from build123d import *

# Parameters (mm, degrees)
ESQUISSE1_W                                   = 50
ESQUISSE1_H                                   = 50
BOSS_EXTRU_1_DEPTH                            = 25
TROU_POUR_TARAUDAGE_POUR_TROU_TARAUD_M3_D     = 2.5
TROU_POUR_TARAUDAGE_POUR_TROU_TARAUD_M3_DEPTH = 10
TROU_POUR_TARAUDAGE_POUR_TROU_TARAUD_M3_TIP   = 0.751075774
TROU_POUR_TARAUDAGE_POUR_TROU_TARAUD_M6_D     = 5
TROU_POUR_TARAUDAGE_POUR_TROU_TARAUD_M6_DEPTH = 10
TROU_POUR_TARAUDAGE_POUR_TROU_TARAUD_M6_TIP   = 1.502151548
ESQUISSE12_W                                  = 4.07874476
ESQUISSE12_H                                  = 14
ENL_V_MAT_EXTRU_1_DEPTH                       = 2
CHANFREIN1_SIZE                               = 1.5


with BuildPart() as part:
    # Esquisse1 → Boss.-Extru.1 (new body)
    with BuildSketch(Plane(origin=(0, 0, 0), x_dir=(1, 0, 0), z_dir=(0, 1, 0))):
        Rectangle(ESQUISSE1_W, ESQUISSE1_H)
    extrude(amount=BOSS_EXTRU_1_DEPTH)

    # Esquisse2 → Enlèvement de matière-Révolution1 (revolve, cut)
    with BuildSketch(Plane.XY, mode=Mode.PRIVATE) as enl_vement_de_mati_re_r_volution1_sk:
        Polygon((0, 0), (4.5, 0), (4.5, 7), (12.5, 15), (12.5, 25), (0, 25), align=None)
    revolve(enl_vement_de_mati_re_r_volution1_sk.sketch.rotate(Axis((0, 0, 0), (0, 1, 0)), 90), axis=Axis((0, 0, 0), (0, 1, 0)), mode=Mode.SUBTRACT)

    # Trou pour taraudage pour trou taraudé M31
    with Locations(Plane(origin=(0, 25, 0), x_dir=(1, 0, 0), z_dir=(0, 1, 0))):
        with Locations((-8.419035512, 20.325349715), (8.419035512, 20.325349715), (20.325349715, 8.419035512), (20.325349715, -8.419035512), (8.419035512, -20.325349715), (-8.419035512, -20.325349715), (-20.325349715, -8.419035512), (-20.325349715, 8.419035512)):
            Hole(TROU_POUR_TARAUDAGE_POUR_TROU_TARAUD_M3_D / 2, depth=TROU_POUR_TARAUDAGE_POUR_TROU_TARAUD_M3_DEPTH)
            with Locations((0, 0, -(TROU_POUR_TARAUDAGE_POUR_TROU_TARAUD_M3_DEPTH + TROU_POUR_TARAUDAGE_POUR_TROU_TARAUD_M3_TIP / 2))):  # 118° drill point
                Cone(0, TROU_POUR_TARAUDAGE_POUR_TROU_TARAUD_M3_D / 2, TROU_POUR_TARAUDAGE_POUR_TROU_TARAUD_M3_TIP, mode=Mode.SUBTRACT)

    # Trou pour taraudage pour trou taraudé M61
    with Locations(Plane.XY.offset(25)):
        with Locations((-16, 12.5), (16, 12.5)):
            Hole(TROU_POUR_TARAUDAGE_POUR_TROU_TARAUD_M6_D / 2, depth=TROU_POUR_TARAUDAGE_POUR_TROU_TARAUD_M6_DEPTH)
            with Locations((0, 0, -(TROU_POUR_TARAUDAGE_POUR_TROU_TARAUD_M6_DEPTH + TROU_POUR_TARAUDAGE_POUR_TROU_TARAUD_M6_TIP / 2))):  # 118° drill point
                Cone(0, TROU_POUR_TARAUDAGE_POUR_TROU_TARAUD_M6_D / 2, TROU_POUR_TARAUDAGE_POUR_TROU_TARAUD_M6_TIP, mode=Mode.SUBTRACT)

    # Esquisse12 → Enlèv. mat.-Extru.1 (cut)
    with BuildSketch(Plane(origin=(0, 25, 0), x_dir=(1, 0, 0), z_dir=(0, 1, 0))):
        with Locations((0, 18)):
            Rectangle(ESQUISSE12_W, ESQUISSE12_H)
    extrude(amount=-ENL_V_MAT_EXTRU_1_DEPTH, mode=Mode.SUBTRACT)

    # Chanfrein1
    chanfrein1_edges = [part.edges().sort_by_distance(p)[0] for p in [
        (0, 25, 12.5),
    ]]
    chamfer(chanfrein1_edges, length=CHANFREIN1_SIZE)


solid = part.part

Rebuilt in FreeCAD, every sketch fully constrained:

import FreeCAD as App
import Part
import Sketcher
from FreeCAD import Vector
Q = App.Units.Quantity


def edges_at(feature, points):
    """Names of the edges that pass closest to the given points."""
    edges = feature.Shape.Edges
    near = lambda p: min(range(len(edges)), key=lambda i: edges[i].distToShape(Part.Vertex(*p))[0])
    return sorted({f"Edge{near(p) + 1}" for p in points})


def add_polygon(sketch, points):
    """Adds a closed chain of lines whose ends are joined by coincident constraints."""
    first, n = sketch.GeometryCount, len(points)
    for a, b in zip(points, points[1:] + points[:1]):
        sketch.addGeometry(Part.LineSegment(App.Vector(*a, 0), App.Vector(*b, 0)), False)
    for i in range(n):
        sketch.addConstraint(Sketcher.Constraint("Coincident", first + i, 2, first + (i + 1) % n, 1))

doc = App.newDocument("Part")
body = doc.addObject("PartDesign::Body", "Body")

sketch1 = body.newObject("Sketcher::SketchObject", "Sketch")
sketch1.AttachmentSupport = (doc.getObject("XZ_Plane"), [""])
sketch1.MapMode = "FlatFace"
add_polygon(sketch1, [(-25, -25), (-25, 25), (25, 25), (25, -25)])
sketch1.addConstraint([
    Sketcher.Constraint("Vertical", 0),
    Sketcher.Constraint("Horizontal", 1),
    Sketcher.Constraint("Vertical", 2),
    Sketcher.Constraint("Horizontal", 3),
    Sketcher.Constraint("Symmetric", 0, 2, 2, 2, -1, 1),
    Sketcher.Constraint("Equal", 3, 0),
    Sketcher.Constraint("DistanceX", 1, 1, 1, 2, 50.0),
])
pad1 = body.newObject("PartDesign::Pad", "Pad")
pad1.Profile = sketch1
pad1.Length = 25
pad1.Reversed = True

sketch2 = body.newObject("Sketcher::SketchObject", "Sketch001")
sketch2.AttachmentSupport = (doc.getObject("XY_Plane"), [""])
sketch2.MapMode = "FlatFace"
add_polygon(sketch2, [(0, 0), (4.5, 0), (4.5, 7), (12.5, 15), (12.5, 25), (0, 25)])
sketch2.addConstraint([
    Sketcher.Constraint("Horizontal", 0),
    Sketcher.Constraint("Vertical", 1),
    Sketcher.Constraint("Vertical", 3),
    Sketcher.Constraint("Horizontal", 4),
    Sketcher.Constraint("Vertical", 5),
    Sketcher.Constraint("Coincident", 5, 2, -1, 1),
    Sketcher.Constraint("DistanceY", 1, 1, 1, 2, 7.0),
    Sketcher.Constraint("DistanceY", 3, 1, 3, 2, 10.0),
    Sketcher.Constraint("DistanceY", 5, 2, 5, 1, 25.0),
    Sketcher.Constraint("Angle", 2, Q("45 deg")),
    Sketcher.Constraint("DistanceX", 0, 1, 0, 2, 4.5),
])
groove = body.newObject("PartDesign::Groove", "Groove")
groove.Profile = sketch2
groove.ReferenceAxis = (sketch2, ["V_Axis"])
groove.Angle = 360

sketch3 = body.newObject("Sketcher::SketchObject", "Sketch002")
sketch3.AttachmentSupport = (doc.getObject("XZ_Plane"), [""])
sketch3.MapMode = "FlatFace"
sketch3.AttachmentOffset = App.Placement(Vector(0, 0, -25), App.Rotation())
sketch3.addGeometry([
    Part.Circle(Vector(-8.4, -20.3, 0), Vector(0, 0, 1), 1.2),
    Part.Circle(Vector(8.4, -20.3, 0), Vector(0, 0, 1), 1.2),
    Part.Circle(Vector(20.3, -8.4, 0), Vector(0, 0, 1), 1.2),
    Part.Circle(Vector(20.3, 8.4, 0), Vector(0, 0, 1), 1.2),
    Part.Circle(Vector(8.4, 20.3, 0), Vector(0, 0, 1), 1.2),
    Part.Circle(Vector(-8.4, 20.3, 0), Vector(0, 0, 1), 1.2),
    Part.Circle(Vector(-20.3, 8.4, 0), Vector(0, 0, 1), 1.2),
    Part.Circle(Vector(-20.3, -8.4, 0), Vector(0, 0, 1), 1.2),
], False)
sketch3.addConstraint([
    Sketcher.Constraint("Equal", 0, 1),
    Sketcher.Constraint("Equal", 1, 2),
    Sketcher.Constraint("Equal", 2, 3),
    Sketcher.Constraint("Equal", 3, 4),
    Sketcher.Constraint("Equal", 4, 5),
    Sketcher.Constraint("Equal", 5, 6),
    Sketcher.Constraint("Equal", 6, 7),
    Sketcher.Constraint("Symmetric", 0, 3, 4, 3, -1, 1),
    Sketcher.Constraint("Symmetric", 1, 3, 5, 3, -1, 1),
    Sketcher.Constraint("Symmetric", 2, 3, 6, 3, -1, 1),
    Sketcher.Constraint("Symmetric", 3, 3, 7, 3, -1, 1),
    Sketcher.Constraint("Symmetric", 0, 3, 1, 3, -2),
    Sketcher.Constraint("Symmetric", 3, 3, 6, 3, -2),
    Sketcher.Constraint("Diameter", 0, 2.5),
    Sketcher.Constraint("DistanceY", 1, 3, 4, 3, 40.650699),
    Sketcher.Constraint("DistanceX", 6, 3, 3, 3, 40.650699),
    Sketcher.Constraint("DistanceX", 0, 3, 1, 3, 16.838071),
    Sketcher.Constraint("DistanceY", 2, 3, 3, 3, 16.838071),
])
doc.recompute()
hole = body.newObject("PartDesign::Hole", "Hole")
hole.Profile = sketch3
hole.ThreadType = "None"
hole.Diameter = 2.5
hole.DepthType = "Dimension"
hole.Depth = 10
hole.DrillPoint = "Angled"
hole.DrillPointAngle = 118
hole.Reversed = True

sketch4 = body.newObject("Sketcher::SketchObject", "Sketch003")
sketch4.AttachmentSupport = (doc.getObject("XY_Plane"), [""])
sketch4.MapMode = "FlatFace"
sketch4.AttachmentOffset = App.Placement(Vector(0, 0, 25), App.Rotation())
sketch4.addGeometry([
    Part.Circle(Vector(-16, 12.5, 0), Vector(0, 0, 1), 2.5),
    Part.Circle(Vector(16, 12.5, 0), Vector(0, 0, 1), 2.5),
], False)
sketch4.addConstraint([
    Sketcher.Constraint("Equal", 0, 1),
    Sketcher.Constraint("Symmetric", 0, 3, 1, 3, -2),
    Sketcher.Constraint("Diameter", 0, 5.0),
    Sketcher.Constraint("DistanceX", 0, 3, -1, 1, 16.0),
    Sketcher.Constraint("DistanceY", -1, 1, 0, 3, 12.5),
])
doc.recompute()
hole2 = body.newObject("PartDesign::Hole", "Hole001")
hole2.Profile = sketch4
hole2.ThreadType = "None"
hole2.Diameter = 5
hole2.DepthType = "Dimension"
hole2.Depth = 10
hole2.DrillPoint = "Angled"
hole2.DrillPointAngle = 118

sketch5 = body.newObject("Sketcher::SketchObject", "Sketch004")
sketch5.AttachmentSupport = (doc.getObject("XZ_Plane"), [""])
sketch5.MapMode = "FlatFace"
sketch5.AttachmentOffset = App.Placement(Vector(0, 0, -25), App.Rotation())
add_polygon(sketch5, [(-2, -25), (-2, -11), (2, -11), (2, -25)])
sketch5.addConstraint([
    Sketcher.Constraint("Vertical", 0),
    Sketcher.Constraint("Horizontal", 1),
    Sketcher.Constraint("Vertical", 2),
    Sketcher.Constraint("Horizontal", 3),
    Sketcher.Constraint("DistanceY", 0, 1, 0, 2, 14.0),
    Sketcher.Constraint("DistanceY", 0, 2, -1, 1, 11.0),
    Sketcher.Constraint("DistanceX", 1, 1, 1, 2, 4.078745),
    Sketcher.Constraint("DistanceX", 0, 2, -1, 1, 2.039372),
])
pocket1 = body.newObject("PartDesign::Pocket", "Pocket")
pocket1.Profile = sketch5
pocket1.Length = 2
pocket1.Reversed = True
doc.recompute()

chamfer = body.newObject("PartDesign::Chamfer", "Chamfer")
chamfer.Base = (pocket1, edges_at(pocket1, [(0, 25, 12.5)]))
chamfer.Size = 1.5

doc.recompute()
